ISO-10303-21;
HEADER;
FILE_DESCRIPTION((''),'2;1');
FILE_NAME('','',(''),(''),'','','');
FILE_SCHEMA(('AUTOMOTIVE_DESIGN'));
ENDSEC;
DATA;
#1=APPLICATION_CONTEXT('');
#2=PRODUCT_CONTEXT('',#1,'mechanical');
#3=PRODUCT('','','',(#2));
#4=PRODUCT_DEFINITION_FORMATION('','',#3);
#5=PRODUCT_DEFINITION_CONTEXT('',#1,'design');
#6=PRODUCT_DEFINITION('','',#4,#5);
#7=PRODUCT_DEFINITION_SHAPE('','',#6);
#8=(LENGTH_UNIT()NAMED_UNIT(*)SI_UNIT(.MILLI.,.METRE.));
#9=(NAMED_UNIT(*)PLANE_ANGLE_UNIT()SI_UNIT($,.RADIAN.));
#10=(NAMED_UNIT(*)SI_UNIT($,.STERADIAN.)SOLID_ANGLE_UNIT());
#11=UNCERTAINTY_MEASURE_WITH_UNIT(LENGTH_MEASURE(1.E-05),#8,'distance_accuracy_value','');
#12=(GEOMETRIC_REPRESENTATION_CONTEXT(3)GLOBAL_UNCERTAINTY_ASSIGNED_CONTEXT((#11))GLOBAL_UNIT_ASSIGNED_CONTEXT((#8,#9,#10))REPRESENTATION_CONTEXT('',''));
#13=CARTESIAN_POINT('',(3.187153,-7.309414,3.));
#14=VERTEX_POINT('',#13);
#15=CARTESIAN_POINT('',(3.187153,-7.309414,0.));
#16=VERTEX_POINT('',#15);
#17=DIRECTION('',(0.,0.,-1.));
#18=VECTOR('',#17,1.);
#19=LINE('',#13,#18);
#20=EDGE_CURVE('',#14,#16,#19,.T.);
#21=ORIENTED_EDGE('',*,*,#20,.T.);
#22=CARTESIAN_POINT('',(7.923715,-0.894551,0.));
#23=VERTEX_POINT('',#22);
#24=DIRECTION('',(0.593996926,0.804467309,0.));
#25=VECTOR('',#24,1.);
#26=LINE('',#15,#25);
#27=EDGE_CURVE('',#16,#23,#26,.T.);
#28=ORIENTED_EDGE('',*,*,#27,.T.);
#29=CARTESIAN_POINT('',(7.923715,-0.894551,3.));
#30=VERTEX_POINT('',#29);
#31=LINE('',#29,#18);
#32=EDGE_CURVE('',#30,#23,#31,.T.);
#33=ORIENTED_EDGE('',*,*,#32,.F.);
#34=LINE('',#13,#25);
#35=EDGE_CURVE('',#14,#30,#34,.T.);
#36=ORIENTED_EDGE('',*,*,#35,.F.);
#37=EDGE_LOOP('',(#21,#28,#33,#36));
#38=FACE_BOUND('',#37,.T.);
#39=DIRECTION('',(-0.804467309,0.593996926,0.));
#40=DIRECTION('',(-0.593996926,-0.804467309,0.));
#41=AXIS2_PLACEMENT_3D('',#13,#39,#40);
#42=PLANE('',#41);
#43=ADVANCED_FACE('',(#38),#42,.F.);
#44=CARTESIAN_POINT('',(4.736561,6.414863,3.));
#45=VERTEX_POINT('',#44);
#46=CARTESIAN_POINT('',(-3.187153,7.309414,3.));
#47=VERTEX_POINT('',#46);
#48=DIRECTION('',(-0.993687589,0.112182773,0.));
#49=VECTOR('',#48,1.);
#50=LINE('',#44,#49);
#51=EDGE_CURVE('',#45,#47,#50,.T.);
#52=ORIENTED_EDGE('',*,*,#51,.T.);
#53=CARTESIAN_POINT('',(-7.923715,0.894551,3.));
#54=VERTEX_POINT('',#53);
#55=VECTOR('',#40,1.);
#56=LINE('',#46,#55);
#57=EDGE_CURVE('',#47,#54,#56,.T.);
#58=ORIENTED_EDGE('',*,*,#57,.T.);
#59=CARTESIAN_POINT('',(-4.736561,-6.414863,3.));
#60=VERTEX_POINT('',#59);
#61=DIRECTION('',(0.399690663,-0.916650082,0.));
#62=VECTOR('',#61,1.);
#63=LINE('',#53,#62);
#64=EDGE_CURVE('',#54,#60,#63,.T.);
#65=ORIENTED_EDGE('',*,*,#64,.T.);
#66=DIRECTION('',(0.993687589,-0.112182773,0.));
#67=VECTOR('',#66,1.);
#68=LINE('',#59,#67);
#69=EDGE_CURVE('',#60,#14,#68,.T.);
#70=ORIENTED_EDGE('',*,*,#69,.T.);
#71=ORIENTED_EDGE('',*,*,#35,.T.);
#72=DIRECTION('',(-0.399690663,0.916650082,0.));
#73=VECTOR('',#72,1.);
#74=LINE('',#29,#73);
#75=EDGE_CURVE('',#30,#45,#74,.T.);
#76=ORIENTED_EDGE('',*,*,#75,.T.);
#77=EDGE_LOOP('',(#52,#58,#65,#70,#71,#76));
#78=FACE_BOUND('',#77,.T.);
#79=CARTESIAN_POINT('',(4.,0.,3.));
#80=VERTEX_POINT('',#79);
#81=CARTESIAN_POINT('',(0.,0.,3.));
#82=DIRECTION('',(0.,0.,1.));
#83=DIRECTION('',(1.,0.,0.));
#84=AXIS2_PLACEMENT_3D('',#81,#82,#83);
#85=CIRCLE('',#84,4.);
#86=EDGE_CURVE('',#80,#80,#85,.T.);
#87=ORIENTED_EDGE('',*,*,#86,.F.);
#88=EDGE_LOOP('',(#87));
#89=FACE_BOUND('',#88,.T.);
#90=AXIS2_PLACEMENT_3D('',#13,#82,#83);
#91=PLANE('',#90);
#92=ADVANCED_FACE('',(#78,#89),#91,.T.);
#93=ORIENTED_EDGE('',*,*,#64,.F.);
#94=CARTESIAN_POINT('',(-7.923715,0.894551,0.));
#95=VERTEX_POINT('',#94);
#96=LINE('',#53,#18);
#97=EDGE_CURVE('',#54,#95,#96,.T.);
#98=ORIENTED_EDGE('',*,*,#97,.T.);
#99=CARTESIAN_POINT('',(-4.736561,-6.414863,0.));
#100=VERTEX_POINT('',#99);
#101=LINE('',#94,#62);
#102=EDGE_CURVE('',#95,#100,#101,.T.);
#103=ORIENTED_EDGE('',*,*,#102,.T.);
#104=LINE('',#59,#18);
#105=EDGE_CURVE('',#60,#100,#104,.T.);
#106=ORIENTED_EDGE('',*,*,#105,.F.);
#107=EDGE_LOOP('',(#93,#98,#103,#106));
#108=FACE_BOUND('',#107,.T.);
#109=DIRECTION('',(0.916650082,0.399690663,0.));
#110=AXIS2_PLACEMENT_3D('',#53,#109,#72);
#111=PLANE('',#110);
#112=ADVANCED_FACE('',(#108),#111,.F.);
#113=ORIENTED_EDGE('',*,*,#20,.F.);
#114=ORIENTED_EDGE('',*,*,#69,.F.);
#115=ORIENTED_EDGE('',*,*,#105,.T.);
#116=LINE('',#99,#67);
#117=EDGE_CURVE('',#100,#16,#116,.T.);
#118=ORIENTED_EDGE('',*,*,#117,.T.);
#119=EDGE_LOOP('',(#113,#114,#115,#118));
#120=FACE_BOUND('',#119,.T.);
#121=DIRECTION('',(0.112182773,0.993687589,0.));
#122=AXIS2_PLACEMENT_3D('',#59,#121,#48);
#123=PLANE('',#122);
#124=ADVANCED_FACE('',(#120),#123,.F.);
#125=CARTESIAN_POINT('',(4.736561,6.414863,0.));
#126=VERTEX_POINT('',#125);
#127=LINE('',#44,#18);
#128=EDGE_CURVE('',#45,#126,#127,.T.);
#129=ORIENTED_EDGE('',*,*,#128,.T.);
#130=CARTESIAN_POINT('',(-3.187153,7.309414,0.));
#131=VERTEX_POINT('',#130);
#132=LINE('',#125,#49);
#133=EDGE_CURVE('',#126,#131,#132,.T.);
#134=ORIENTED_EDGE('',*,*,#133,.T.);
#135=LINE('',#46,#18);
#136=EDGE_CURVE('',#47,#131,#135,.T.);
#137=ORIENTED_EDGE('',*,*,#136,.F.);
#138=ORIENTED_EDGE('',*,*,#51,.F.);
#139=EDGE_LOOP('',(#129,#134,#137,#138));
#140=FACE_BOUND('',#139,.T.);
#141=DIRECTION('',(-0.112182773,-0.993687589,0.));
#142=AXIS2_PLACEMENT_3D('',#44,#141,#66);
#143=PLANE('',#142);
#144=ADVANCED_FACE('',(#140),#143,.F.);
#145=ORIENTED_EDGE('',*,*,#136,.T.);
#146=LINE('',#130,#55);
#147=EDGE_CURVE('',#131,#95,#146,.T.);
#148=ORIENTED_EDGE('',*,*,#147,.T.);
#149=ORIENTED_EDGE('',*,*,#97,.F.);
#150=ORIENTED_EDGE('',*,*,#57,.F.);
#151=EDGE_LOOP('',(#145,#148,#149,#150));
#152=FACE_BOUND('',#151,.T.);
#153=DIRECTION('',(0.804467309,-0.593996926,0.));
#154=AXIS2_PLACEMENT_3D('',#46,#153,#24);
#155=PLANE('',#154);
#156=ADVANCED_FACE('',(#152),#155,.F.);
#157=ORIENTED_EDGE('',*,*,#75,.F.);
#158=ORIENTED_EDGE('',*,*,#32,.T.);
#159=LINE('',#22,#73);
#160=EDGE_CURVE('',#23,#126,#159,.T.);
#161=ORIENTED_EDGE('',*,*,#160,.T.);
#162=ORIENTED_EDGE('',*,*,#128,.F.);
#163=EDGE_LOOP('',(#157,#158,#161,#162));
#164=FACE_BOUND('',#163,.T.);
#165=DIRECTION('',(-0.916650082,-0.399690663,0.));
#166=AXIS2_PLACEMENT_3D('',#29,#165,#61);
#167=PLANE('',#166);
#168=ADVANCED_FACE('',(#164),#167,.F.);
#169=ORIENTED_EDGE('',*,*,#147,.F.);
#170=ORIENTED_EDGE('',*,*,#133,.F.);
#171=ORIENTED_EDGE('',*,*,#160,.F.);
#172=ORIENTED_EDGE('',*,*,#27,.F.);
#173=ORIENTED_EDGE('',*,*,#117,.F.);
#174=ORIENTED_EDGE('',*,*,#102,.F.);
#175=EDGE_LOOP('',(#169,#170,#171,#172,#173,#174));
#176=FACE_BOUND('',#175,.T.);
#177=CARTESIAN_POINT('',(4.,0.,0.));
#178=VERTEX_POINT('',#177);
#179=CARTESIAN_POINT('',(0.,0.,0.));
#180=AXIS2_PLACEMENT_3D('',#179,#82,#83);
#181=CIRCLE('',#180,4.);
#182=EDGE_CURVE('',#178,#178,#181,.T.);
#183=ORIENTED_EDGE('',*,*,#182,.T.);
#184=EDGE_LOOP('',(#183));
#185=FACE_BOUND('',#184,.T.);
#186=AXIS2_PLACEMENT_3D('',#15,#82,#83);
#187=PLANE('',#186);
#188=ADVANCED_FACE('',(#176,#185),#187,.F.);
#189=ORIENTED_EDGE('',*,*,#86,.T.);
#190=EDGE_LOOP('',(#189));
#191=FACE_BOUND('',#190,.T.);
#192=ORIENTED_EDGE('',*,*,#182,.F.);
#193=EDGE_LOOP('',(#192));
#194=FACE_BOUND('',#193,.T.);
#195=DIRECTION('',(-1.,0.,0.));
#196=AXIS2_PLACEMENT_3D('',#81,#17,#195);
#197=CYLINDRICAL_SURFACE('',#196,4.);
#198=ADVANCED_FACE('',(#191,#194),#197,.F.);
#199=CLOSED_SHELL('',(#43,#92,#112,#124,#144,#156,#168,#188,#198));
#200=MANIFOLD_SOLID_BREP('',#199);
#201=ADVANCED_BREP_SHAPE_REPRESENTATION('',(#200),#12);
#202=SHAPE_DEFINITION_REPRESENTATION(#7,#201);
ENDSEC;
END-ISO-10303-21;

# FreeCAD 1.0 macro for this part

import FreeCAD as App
import Part
import Sketcher

V = App.Vector

doc = App.newDocument("Part")
params = doc.addObject("Spreadsheet::Sheet", "Params")
for row, (alias, value) in enumerate([
    ("sketch1_diameter", "8 mm"),
    ("pad1_length", "3 mm"),
], start=1):
    params.set(f"A{row}", alias)
    params.set(f"B{row}", "=" + value)
    params.setAlias(f"B{row}", alias)

body = doc.addObject("PartDesign::Body", "Body")

sketch1 = body.newObject("Sketcher::SketchObject", "Sketch")
sketch1.AttachmentSupport = (doc.getObject("XY_Plane"), [""])
sketch1.MapMode = "FlatFace"
sketch1.addGeometry([
    Part.LineSegment(V(3.2, -7.3, 0), V(7.9, -0.9, 0)),
    Part.LineSegment(V(7.9, -0.9, 0), V(4.7, 6.4, 0)),
    Part.LineSegment(V(4.7, 6.4, 0), V(-3.2, 7.3, 0)),
    Part.LineSegment(V(-3.2, 7.3, 0), V(-7.9, 0.9, 0)),
    Part.LineSegment(V(-7.9, 0.9, 0), V(-4.7, -6.4, 0)),
    Part.LineSegment(V(-4.7, -6.4, 0), V(3.2, -7.3, 0)),
    Part.Circle(V(0, 0, 0), V(0, 0, 1), 4),
], False)
sketch1.addConstraint([
    Sketcher.Constraint("Coincident", 0, 2, 1, 1),
    Sketcher.Constraint("Coincident", 1, 2, 2, 1),
    Sketcher.Constraint("Coincident", 2, 2, 3, 1),
    Sketcher.Constraint("Coincident", 3, 2, 4, 1),
    Sketcher.Constraint("Coincident", 4, 2, 5, 1),
    Sketcher.Constraint("Coincident", 5, 2, 0, 1),
    Sketcher.Constraint("Coincident", 6, 3, -1, 1),
    Sketcher.Constraint("Symmetric", 0, 2, 3, 2, -1, 1),
    Sketcher.Constraint("Symmetric", 1, 2, 4, 2, -1, 1),
    Sketcher.Constraint("Symmetric", 2, 2, 5, 2, -1, 1),
    Sketcher.Constraint("Equal", 0, 1),
    Sketcher.Constraint("Equal", 1, 2),
    Sketcher.Constraint("Diameter", 6, 8.0),
    Sketcher.Constraint("Distance", 0, 7.97405),
    Sketcher.Constraint("DistanceY", 0, 2, -1, 1, 0.894551),
    Sketcher.Constraint("DistanceX", -1, 1, 1, 2, 4.736561),
    Sketcher.Constraint("DistanceY", 1, 2, 2, 2, 0.894551),
])
sketch1.setExpression("Constraints[12]", "Params.sketch1_diameter")
pad1 = body.newObject("PartDesign::Pad", "Pad")
pad1.Profile = sketch1
pad1.setExpression("Length", "Params.pad1_length")

doc.recompute()
